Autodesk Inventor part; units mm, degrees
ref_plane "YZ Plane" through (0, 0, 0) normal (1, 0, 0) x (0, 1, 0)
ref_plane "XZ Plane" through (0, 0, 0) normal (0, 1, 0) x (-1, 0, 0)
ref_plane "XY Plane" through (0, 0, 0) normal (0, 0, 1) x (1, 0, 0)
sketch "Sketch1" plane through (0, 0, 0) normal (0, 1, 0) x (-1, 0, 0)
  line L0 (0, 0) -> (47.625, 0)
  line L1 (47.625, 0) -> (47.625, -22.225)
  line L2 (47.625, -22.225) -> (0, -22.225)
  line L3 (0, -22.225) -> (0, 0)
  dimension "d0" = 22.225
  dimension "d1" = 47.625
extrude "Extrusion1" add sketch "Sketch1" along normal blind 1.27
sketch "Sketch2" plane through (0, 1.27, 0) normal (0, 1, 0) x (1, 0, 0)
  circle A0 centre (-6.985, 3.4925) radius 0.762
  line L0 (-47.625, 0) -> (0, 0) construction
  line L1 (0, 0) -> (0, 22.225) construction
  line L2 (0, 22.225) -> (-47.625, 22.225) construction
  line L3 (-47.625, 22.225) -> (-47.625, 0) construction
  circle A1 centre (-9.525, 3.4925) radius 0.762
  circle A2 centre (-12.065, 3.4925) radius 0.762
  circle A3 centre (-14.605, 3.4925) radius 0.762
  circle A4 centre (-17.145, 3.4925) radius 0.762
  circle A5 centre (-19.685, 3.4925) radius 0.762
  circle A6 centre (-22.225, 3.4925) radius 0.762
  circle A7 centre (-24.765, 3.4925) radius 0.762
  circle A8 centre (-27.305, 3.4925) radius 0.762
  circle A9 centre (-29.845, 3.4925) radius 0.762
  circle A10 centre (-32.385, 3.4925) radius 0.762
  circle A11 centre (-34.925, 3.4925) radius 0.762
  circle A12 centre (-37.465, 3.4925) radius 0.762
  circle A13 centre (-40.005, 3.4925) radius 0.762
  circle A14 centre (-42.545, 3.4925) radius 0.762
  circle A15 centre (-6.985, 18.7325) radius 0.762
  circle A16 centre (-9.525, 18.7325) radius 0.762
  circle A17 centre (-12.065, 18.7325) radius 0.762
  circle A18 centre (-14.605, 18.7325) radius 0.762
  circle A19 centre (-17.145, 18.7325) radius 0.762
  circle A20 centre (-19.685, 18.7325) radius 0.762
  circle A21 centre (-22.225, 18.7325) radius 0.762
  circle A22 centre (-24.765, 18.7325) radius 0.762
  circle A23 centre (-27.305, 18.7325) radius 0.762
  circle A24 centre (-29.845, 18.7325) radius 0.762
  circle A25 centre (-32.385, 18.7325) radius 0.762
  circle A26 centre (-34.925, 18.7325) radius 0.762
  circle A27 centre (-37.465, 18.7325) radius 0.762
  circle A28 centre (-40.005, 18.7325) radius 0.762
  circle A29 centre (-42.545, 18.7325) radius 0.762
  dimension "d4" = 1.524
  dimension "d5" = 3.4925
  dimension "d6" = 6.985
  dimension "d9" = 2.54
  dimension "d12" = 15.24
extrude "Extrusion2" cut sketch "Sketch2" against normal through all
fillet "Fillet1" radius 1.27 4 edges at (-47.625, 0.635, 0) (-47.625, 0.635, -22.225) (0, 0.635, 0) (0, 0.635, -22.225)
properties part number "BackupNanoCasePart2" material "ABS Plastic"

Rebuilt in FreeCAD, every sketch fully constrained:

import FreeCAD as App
import Part
import Sketcher
from FreeCAD import Vector
Q = App.Units.Quantity


def edges_at(feature, points):
    """Names of the edges that pass closest to the given points."""
    edges = feature.Shape.Edges
    near = lambda p: min(range(len(edges)), key=lambda i: edges[i].distToShape(Part.Vertex(*p))[0])
    return sorted({f"Edge{near(p) + 1}" for p in points})


def add_polygon(sketch, points):
    """Adds a closed chain of lines whose ends are joined by coincident constraints."""
    first, n = sketch.GeometryCount, len(points)
    for a, b in zip(points, points[1:] + points[:1]):
        sketch.addGeometry(Part.LineSegment(App.Vector(*a, 0), App.Vector(*b, 0)), False)
    for i in range(n):
        sketch.addConstraint(Sketcher.Constraint("Coincident", first + i, 2, first + (i + 1) % n, 1))

doc = App.newDocument("Part")
body = doc.addObject("PartDesign::Body", "Body")

sketch1 = doc.addObject("Sketcher::SketchObject", "Sketch")
body.addObject(sketch1)
sketch1.AttachmentSupport = (doc.XZ_Plane, [""])
sketch1.MapMode = "FlatFace"
add_polygon(sketch1, [(-48, 0), (0, 0), (0, -22), (-48, -22)])
sketch1.addConstraint(Sketcher.Constraint("Horizontal", 0))
sketch1.addConstraint(Sketcher.Constraint("Vertical", 1))
sketch1.addConstraint(Sketcher.Constraint("Horizontal", 2))
sketch1.addConstraint(Sketcher.Constraint("Vertical", 3))
sketch1.addConstraint(Sketcher.Constraint("Coincident", 0, 2, -1, 1))
sketch1.addConstraint(Sketcher.Constraint("DistanceX", 0, 1, 0, 2, Q("1.875 in")))
sketch1.addConstraint(Sketcher.Constraint("DistanceY", 1, 2, 1, 1, Q("0.875 in")))
pad1 = doc.addObject("PartDesign::Pad", "Pad")
body.addObject(pad1)
pad1.Profile = sketch1
pad1.Length = Q("0.05 in")
pad1.Reversed = True

sketch2 = doc.addObject("Sketcher::SketchObject", "Sketch001")
body.addObject(sketch2)
sketch2.AttachmentSupport = (doc.XZ_Plane, [""])
sketch2.MapMode = "FlatFace"
sketch2.AttachmentOffset = App.Placement(Vector(0, 0, -0.05 * 25.4), App.Rotation())
sketch2.addGeometry(Part.Circle(Vector(-7, -3.5, 0), Vector(0, 0, 1), 0.8), False)
sketch2.addGeometry(Part.Circle(Vector(-9.5, -3.5, 0), Vector(0, 0, 1), 0.8), False)
sketch2.addGeometry(Part.Circle(Vector(-12.1, -3.5, 0), Vector(0, 0, 1), 0.8), False)
sketch2.addGeometry(Part.Circle(Vector(-14.6, -3.5, 0), Vector(0, 0, 1), 0.8), False)
sketch2.addGeometry(Part.Circle(Vector(-17.1, -3.5, 0), Vector(0, 0, 1), 0.8), False)
sketch2.addGeometry(Part.Circle(Vector(-19.7, -3.5, 0), Vector(0, 0, 1), 0.8), False)
sketch2.addGeometry(Part.Circle(Vector(-22.2, -3.5, 0), Vector(0, 0, 1), 0.8), False)
sketch2.addGeometry(Part.Circle(Vector(-24.8, -3.5, 0), Vector(0, 0, 1), 0.8), False)
sketch2.addGeometry(Part.Circle(Vector(-27.3, -3.5, 0), Vector(0, 0, 1), 0.8), False)
sketch2.addGeometry(Part.Circle(Vector(-29.8, -3.5, 0), Vector(0, 0, 1), 0.8), False)
sketch2.addGeometry(Part.Circle(Vector(-32.4, -3.5, 0), Vector(0, 0, 1), 0.8), False)
sketch2.addGeometry(Part.Circle(Vector(-34.9, -3.5, 0), Vector(0, 0, 1), 0.8), False)
sketch2.addGeometry(Part.Circle(Vector(-37.5, -3.5, 0), Vector(0, 0, 1), 0.8), False)
sketch2.addGeometry(Part.Circle(Vector(-40, -3.5, 0), Vector(0, 0, 1), 0.8), False)
sketch2.addGeometry(Part.Circle(Vector(-42.5, -3.5, 0), Vector(0, 0, 1), 0.8), False)
sketch2.addGeometry(Part.Circle(Vector(-7, -18.7, 0), Vector(0, 0, 1), 0.8), False)
sketch2.addGeometry(Part.Circle(Vector(-9.5, -18.7, 0), Vector(0, 0, 1), 0.8), False)
sketch2.addGeometry(Part.Circle(Vector(-12.1, -18.7, 0), Vector(0, 0, 1), 0.8), False)
sketch2.addGeometry(Part.Circle(Vector(-14.6, -18.7, 0), Vector(0, 0, 1), 0.8), False)
sketch2.addGeometry(Part.Circle(Vector(-17.1, -18.7, 0), Vector(0, 0, 1), 0.8), False)
sketch2.addGeometry(Part.Circle(Vector(-19.7, -18.7, 0), Vector(0, 0, 1), 0.8), False)
sketch2.addGeometry(Part.Circle(Vector(-22.2, -18.7, 0), Vector(0, 0, 1), 0.8), False)
sketch2.addGeometry(Part.Circle(Vector(-24.8, -18.7, 0), Vector(0, 0, 1), 0.8), False)
sketch2.addGeometry(Part.Circle(Vector(-27.3, -18.7, 0), Vector(0, 0, 1), 0.8), False)
sketch2.addGeometry(Part.Circle(Vector(-29.8, -18.7, 0), Vector(0, 0, 1), 0.8), False)
sketch2.addGeometry(Part.Circle(Vector(-32.4, -18.7, 0), Vector(0, 0, 1), 0.8), False)
sketch2.addGeometry(Part.Circle(Vector(-34.9, -18.7, 0), Vector(0, 0, 1), 0.8), False)
sketch2.addGeometry(Part.Circle(Vector(-37.5, -18.7, 0), Vector(0, 0, 1), 0.8), False)
sketch2.addGeometry(Part.Circle(Vector(-40, -18.7, 0), Vector(0, 0, 1), 0.8), False)
sketch2.addGeometry(Part.Circle(Vector(-42.5, -18.7, 0), Vector(0, 0, 1), 0.8), False)
sketch2.addConstraint(Sketcher.Constraint("Equal", 0, 1))
sketch2.addConstraint(Sketcher.Constraint("Equal", 1, 2))
sketch2.addConstraint(Sketcher.Constraint("Equal", 2, 3))
sketch2.addConstraint(Sketcher.Constraint("Equal", 3, 4))
sketch2.addConstraint(Sketcher.Constraint("Equal", 4, 5))
sketch2.addConstraint(Sketcher.Constraint("Equal", 5, 6))
sketch2.addConstraint(Sketcher.Constraint("Equal", 6, 7))
sketch2.addConstraint(Sketcher.Constraint("Equal", 7, 8))
sketch2.addConstraint(Sketcher.Constraint("Equal", 8, 9))
sketch2.addConstraint(Sketcher.Constraint("Equal", 9, 10))
sketch2.addConstraint(Sketcher.Constraint("Equal", 10, 11))
sketch2.addConstraint(Sketcher.Constraint("Equal", 11, 12))
sketch2.addConstraint(Sketcher.Constraint("Equal", 12, 13))
sketch2.addConstraint(Sketcher.Constraint("Equal", 13, 14))
sketch2.addConstraint(Sketcher.Constraint("Equal", 14, 15))
sketch2.addConstraint(Sketcher.Constraint("Equal", 15, 16))
sketch2.addConstraint(Sketcher.Constraint("Equal", 16, 17))
sketch2.addConstraint(Sketcher.Constraint("Equal", 17, 18))
sketch2.addConstraint(Sketcher.Constraint("Equal", 18, 19))
sketch2.addConstraint(Sketcher.Constraint("Equal", 19, 20))
sketch2.addConstraint(Sketcher.Constraint("Equal", 20, 21))
sketch2.addConstraint(Sketcher.Constraint("Equal", 21, 22))
sketch2.addConstraint(Sketcher.Constraint("Equal", 22, 23))
sketch2.addConstraint(Sketcher.Constraint("Equal", 23, 24))
sketch2.addConstraint(Sketcher.Constraint("Equal", 24, 25))
sketch2.addConstraint(Sketcher.Constraint("Equal", 25, 26))
sketch2.addConstraint(Sketcher.Constraint("Equal", 26, 27))
sketch2.addConstraint(Sketcher.Constraint("Equal", 27, 28))
sketch2.addConstraint(Sketcher.Constraint("Equal", 28, 29))
sketch2.addConstraint(Sketcher.Constraint("Horizontal", 0, 3, 1, 3))
sketch2.addConstraint(Sketcher.Constraint("Horizontal", 1, 3, 2, 3))
sketch2.addConstraint(Sketcher.Constraint("Horizontal", 2, 3, 3, 3))
sketch2.addConstraint(Sketcher.Constraint("Horizontal", 3, 3, 4, 3))
sketch2.addConstraint(Sketcher.Constraint("Horizontal", 4, 3, 5, 3))
sketch2.addConstraint(Sketcher.Constraint("Horizontal", 5, 3, 6, 3))
sketch2.addConstraint(Sketcher.Constraint("Horizontal", 6, 3, 7, 3))
sketch2.addConstraint(Sketcher.Constraint("Horizontal", 7, 3, 8, 3))
sketch2.addConstraint(Sketcher.Constraint("Horizontal", 8, 3, 9, 3))
sketch2.addConstraint(Sketcher.Constraint("Horizontal", 9, 3, 10, 3))
sketch2.addConstraint(Sketcher.Constraint("Horizontal", 10, 3, 11, 3))
sketch2.addConstraint(Sketcher.Constraint("Horizontal", 11, 3, 12, 3))
sketch2.addConstraint(Sketcher.Constraint("Horizontal", 12, 3, 13, 3))
sketch2.addConstraint(Sketcher.Constraint("Horizontal", 13, 3, 14, 3))
sketch2.addConstraint(Sketcher.Constraint("Horizontal", 15, 3, 16, 3))
sketch2.addConstraint(Sketcher.Constraint("Horizontal", 16, 3, 17, 3))
sketch2.addConstraint(Sketcher.Constraint("Horizontal", 17, 3, 18, 3))
sketch2.addConstraint(Sketcher.Constraint("Horizontal", 18, 3, 19, 3))
sketch2.addConstraint(Sketcher.Constraint("Horizontal", 19, 3, 20, 3))
sketch2.addConstraint(Sketcher.Constraint("Horizontal", 20, 3, 21, 3))
sketch2.addConstraint(Sketcher.Constraint("Horizontal", 21, 3, 22, 3))
sketch2.addConstraint(Sketcher.Constraint("Horizontal", 22, 3, 23, 3))
sketch2.addConstraint(Sketcher.Constraint("Horizontal", 23, 3, 24, 3))
sketch2.addConstraint(Sketcher.Constraint("Horizontal", 24, 3, 25, 3))
sketch2.addConstraint(Sketcher.Constraint("Horizontal", 25, 3, 26, 3))
sketch2.addConstraint(Sketcher.Constraint("Horizontal", 26, 3, 27, 3))
sketch2.addConstraint(Sketcher.Constraint("Horizontal", 27, 3, 28, 3))
sketch2.addConstraint(Sketcher.Constraint("Horizontal", 28, 3, 29, 3))
sketch2.addConstraint(Sketcher.Constraint("Vertical", 0, 3, 15, 3))
sketch2.addConstraint(Sketcher.Constraint("Vertical", 1, 3, 16, 3))
sketch2.addConstraint(Sketcher.Constraint("Vertical", 2, 3, 17, 3))
sketch2.addConstraint(Sketcher.Constraint("Vertical", 3, 3, 18, 3))
sketch2.addConstraint(Sketcher.Constraint("Vertical", 4, 3, 19, 3))
sketch2.addConstraint(Sketcher.Constraint("Vertical", 5, 3, 20, 3))
sketch2.addConstraint(Sketcher.Constraint("Vertical", 6, 3, 21, 3))
sketch2.addConstraint(Sketcher.Constraint("Vertical", 7, 3, 22, 3))
sketch2.addConstraint(Sketcher.Constraint("Vertical", 8, 3, 23, 3))
sketch2.addConstraint(Sketcher.Constraint("Vertical", 9, 3, 24, 3))
sketch2.addConstraint(Sketcher.Constraint("Vertical", 10, 3, 25, 3))
sketch2.addConstraint(Sketcher.Constraint("Vertical", 11, 3, 26, 3))
sketch2.addConstraint(Sketcher.Constraint("Vertical", 12, 3, 27, 3))
sketch2.addConstraint(Sketcher.Constraint("Vertical", 13, 3, 28, 3))
sketch2.addConstraint(Sketcher.Constraint("Vertical", 14, 3, 29, 3))
sketch2.addConstraint(Sketcher.Constraint("Diameter", 0, Q("0.06 in")))
sketch2.addConstraint(Sketcher.Constraint("DistanceX", 1, 3, 0, 3, Q("0.1 in")))
sketch2.addConstraint(Sketcher.Constraint("DistanceX", 2, 3, 1, 3, Q("0.1 in")))
sketch2.addConstraint(Sketcher.Constraint("DistanceX", 3, 3, 2, 3, Q("0.1 in")))
sketch2.addConstraint(Sketcher.Constraint("DistanceX", 4, 3, 3, 3, Q("0.1 in")))
sketch2.addConstraint(Sketcher.Constraint("DistanceX", 5, 3, 4, 3, Q("0.1 in")))
sketch2.addConstraint(Sketcher.Constraint("DistanceX", 6, 3, 5, 3, Q("0.1 in")))
sketch2.addConstraint(Sketcher.Constraint("DistanceX", 7, 3, 6, 3, Q("0.1 in")))
sketch2.addConstraint(Sketcher.Constraint("DistanceX", 8, 3, 7, 3, Q("0.1 in")))
sketch2.addConstraint(Sketcher.Constraint("DistanceX", 9, 3, 8, 3, Q("0.1 in")))
sketch2.addConstraint(Sketcher.Constraint("DistanceX", 10, 3, 9, 3, Q("0.1 in")))
sketch2.addConstraint(Sketcher.Constraint("DistanceX", 11, 3, 10, 3, Q("0.1 in")))
sketch2.addConstraint(Sketcher.Constraint("DistanceX", 12, 3, 11, 3, Q("0.1 in")))
sketch2.addConstraint(Sketcher.Constraint("DistanceX", 13, 3, 12, 3, Q("0.1 in")))
sketch2.addConstraint(Sketcher.Constraint("DistanceX", 14, 3, 13, 3, Q("0.1 in")))
sketch2.addConstraint(Sketcher.Constraint("DistanceY", 15, 3, 0, 3, Q("0.6 in")))
sketch2.addConstraint(Sketcher.Constraint("DistanceX", 0, 3, -1, 1, Q("0.275 in")))
sketch2.addConstraint(Sketcher.Constraint("DistanceY", 0, 3, -1, 1, Q("0.1375 in")))
pocket1 = doc.addObject("PartDesign::Pocket", "Pocket")
body.addObject(pocket1)
pocket1.Profile = sketch2
pocket1.Type = "ThroughAll"
pocket1.Reversed = True
doc.recompute()

fillet = doc.addObject("PartDesign::Fillet", "Fillet")
body.addObject(fillet)
fillet.Base = (pocket1, edges_at(pocket1, [
    (-47.625, 0.635, 0),
    (-47.625, 0.635, -22.225),
    (0, 0.635, 0),
    (0, 0.635, -22.225),
]))
fillet.Radius = Q("0.05 in")

doc.recompute()
